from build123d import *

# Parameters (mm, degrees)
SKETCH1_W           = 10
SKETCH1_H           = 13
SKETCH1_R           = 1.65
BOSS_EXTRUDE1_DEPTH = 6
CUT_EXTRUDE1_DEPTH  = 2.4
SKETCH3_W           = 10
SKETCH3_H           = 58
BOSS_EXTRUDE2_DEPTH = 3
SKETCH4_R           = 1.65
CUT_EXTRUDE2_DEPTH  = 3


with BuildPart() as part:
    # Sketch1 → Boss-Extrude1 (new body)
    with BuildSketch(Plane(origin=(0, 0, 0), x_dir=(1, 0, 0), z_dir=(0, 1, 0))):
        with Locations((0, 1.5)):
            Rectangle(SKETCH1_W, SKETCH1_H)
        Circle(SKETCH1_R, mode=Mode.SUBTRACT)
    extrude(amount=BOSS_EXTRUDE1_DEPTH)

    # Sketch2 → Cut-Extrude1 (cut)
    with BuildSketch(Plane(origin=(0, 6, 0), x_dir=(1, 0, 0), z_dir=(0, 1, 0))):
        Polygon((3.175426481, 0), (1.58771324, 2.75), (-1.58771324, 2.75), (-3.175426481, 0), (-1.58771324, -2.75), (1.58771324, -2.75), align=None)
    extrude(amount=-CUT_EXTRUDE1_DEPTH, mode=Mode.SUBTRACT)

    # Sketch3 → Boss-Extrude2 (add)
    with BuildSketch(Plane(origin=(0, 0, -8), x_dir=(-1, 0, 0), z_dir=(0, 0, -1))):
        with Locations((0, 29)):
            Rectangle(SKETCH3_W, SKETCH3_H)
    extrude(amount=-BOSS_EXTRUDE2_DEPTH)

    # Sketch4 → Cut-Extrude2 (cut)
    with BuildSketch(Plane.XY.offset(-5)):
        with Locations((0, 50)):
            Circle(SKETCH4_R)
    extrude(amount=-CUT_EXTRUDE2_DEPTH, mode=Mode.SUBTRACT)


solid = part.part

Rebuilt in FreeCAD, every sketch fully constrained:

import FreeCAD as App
import Part
import Sketcher

V = App.Vector
Q = App.Units.Quantity


def add_polygon(sketch, points):
    """Adds a closed chain of lines whose ends are joined by coincident constraints."""
    first, n = sketch.GeometryCount, len(points)
    for a, b in zip(points, points[1:] + points[:1]):
        sketch.addGeometry(Part.LineSegment(App.Vector(*a, 0), App.Vector(*b, 0)), False)
    for i in range(n):
        sketch.addConstraint(Sketcher.Constraint("Coincident", first + i, 2, first + (i + 1) % n, 1))

doc = App.newDocument("Part")
body = doc.addObject("PartDesign::Body", "Body")

# Sketch on XZ plane
sketch1 = body.newObject("Sketcher::SketchObject", "Sketch")
sketch1.AttachmentSupport = (doc.getObject("XZ_Plane"), [""])
sketch1.MapMode = "FlatFace"
add_polygon(sketch1, [(-5, -8), (-5, 5), (5, 5), (5, -8)])  # lines 0-3
sketch1.addGeometry(Part.Circle(V(0, 0, 0), V(0, 0, 1), 1.65), False)  # 4
sketch1.addConstraint([
    Sketcher.Constraint("Vertical", 0),
    Sketcher.Constraint("Horizontal", 1),
    Sketcher.Constraint("Vertical", 2),
    Sketcher.Constraint("Horizontal", 3),
    Sketcher.Constraint("Coincident", 4, 3, -1, 1),
    Sketcher.Constraint("Diameter", 4, 3.3),
    Sketcher.Constraint("DistanceX", 1, 1, 1, 2, 10.0),
    Sketcher.Constraint("DistanceY", 0, 1, 0, 2, 13.0),
    Sketcher.Constraint("DistanceX", 0, 2, -1, 1, 5.0),
    Sketcher.Constraint("DistanceY", -1, 1, 0, 2, 5.0),
])
pad1 = body.newObject("PartDesign::Pad", "Pad")
pad1.Profile = sketch1
pad1.Length = 6
pad1.Reversed = True

# Sketch on XZ plane
sketch2 = body.newObject("Sketcher::SketchObject", "Sketch001")
sketch2.AttachmentSupport = (doc.getObject("XZ_Plane"), [""])
sketch2.MapMode = "FlatFace"
sketch2.AttachmentOffset = App.Placement(V(0, 0, -6), App.Rotation())
add_polygon(sketch2, [(3.175426, 0), (1.587713, -2.75), (-1.587713, -2.75), (-3.175426, 0), (-1.587713, 2.75), (1.587713, 2.75)])  # lines 0-5
sketch2.addConstraint([
    Sketcher.Constraint("Horizontal", 1),
    Sketcher.Constraint("Horizontal", 4),
    Sketcher.Constraint("Symmetric", 0, 2, 3, 2, -1, 1),
    Sketcher.Constraint("Symmetric", 2, 2, 5, 2, -1, 1),
    Sketcher.Constraint("PointOnObject", 2, 2, -1),
    Sketcher.Constraint("Parallel", 2, 5),
    Sketcher.Constraint("Vertical", 1, 2, 3, 2),
    Sketcher.Constraint("Angle", 0, Q("-120 deg")),
    Sketcher.Constraint("DistanceY", 1, 2, 3, 2, 5.5),
    Sketcher.Constraint("DistanceX", 1, 2, 1, 1, 3.175426),
])
pocket1 = body.newObject("PartDesign::Pocket", "Pocket")
pocket1.Profile = sketch2
pocket1.Length = 2.4
pocket1.Reversed = True

# Sketch on XY plane
sketch3 = body.newObject("Sketcher::SketchObject", "Sketch002")
sketch3.AttachmentSupport = (doc.getObject("XY_Plane"), [""])
sketch3.MapMode = "FlatFace"
sketch3.AttachmentOffset = App.Placement(V(0, 0, -8), App.Rotation())
add_polygon(sketch3, [(5, 58), (5, 0), (-5, 0), (-5, 58)])  # lines 0-3
sketch3.addConstraint([
    Sketcher.Constraint("Vertical", 0),
    Sketcher.Constraint("Horizontal", 1),
    Sketcher.Constraint("Vertical", 2),
    Sketcher.Constraint("Horizontal", 3),
    Sketcher.Constraint("Symmetric", 0, 2, 1, 2, -1, 1),
    Sketcher.Constraint("DistanceX", 1, 2, 1, 1, 10.0),
    Sketcher.Constraint("DistanceY", 0, 2, 0, 1, 58.0),
])
pad2 = body.newObject("PartDesign::Pad", "Pad001")
pad2.Profile = sketch3
pad2.Length = 3

# Sketch on XY plane
sketch4 = body.newObject("Sketcher::SketchObject", "Sketch003")
sketch4.AttachmentSupport = (doc.getObject("XY_Plane"), [""])
sketch4.MapMode = "FlatFace"
sketch4.AttachmentOffset = App.Placement(V(0, 0, -5), App.Rotation())
sketch4.addGeometry(Part.Circle(V(0, 50, 0), V(0, 0, 1), 1.65), False)
sketch4.addConstraint([
    Sketcher.Constraint("PointOnObject", 0, 3, -2),
    Sketcher.Constraint("Diameter", 0, 3.3),
    Sketcher.Constraint("DistanceY", -1, 1, 0, 3, 50.0),
])
pocket2 = body.newObject("PartDesign::Pocket", "Pocket001")
pocket2.Profile = sketch4
pocket2.Length = 3

doc.recompute()
